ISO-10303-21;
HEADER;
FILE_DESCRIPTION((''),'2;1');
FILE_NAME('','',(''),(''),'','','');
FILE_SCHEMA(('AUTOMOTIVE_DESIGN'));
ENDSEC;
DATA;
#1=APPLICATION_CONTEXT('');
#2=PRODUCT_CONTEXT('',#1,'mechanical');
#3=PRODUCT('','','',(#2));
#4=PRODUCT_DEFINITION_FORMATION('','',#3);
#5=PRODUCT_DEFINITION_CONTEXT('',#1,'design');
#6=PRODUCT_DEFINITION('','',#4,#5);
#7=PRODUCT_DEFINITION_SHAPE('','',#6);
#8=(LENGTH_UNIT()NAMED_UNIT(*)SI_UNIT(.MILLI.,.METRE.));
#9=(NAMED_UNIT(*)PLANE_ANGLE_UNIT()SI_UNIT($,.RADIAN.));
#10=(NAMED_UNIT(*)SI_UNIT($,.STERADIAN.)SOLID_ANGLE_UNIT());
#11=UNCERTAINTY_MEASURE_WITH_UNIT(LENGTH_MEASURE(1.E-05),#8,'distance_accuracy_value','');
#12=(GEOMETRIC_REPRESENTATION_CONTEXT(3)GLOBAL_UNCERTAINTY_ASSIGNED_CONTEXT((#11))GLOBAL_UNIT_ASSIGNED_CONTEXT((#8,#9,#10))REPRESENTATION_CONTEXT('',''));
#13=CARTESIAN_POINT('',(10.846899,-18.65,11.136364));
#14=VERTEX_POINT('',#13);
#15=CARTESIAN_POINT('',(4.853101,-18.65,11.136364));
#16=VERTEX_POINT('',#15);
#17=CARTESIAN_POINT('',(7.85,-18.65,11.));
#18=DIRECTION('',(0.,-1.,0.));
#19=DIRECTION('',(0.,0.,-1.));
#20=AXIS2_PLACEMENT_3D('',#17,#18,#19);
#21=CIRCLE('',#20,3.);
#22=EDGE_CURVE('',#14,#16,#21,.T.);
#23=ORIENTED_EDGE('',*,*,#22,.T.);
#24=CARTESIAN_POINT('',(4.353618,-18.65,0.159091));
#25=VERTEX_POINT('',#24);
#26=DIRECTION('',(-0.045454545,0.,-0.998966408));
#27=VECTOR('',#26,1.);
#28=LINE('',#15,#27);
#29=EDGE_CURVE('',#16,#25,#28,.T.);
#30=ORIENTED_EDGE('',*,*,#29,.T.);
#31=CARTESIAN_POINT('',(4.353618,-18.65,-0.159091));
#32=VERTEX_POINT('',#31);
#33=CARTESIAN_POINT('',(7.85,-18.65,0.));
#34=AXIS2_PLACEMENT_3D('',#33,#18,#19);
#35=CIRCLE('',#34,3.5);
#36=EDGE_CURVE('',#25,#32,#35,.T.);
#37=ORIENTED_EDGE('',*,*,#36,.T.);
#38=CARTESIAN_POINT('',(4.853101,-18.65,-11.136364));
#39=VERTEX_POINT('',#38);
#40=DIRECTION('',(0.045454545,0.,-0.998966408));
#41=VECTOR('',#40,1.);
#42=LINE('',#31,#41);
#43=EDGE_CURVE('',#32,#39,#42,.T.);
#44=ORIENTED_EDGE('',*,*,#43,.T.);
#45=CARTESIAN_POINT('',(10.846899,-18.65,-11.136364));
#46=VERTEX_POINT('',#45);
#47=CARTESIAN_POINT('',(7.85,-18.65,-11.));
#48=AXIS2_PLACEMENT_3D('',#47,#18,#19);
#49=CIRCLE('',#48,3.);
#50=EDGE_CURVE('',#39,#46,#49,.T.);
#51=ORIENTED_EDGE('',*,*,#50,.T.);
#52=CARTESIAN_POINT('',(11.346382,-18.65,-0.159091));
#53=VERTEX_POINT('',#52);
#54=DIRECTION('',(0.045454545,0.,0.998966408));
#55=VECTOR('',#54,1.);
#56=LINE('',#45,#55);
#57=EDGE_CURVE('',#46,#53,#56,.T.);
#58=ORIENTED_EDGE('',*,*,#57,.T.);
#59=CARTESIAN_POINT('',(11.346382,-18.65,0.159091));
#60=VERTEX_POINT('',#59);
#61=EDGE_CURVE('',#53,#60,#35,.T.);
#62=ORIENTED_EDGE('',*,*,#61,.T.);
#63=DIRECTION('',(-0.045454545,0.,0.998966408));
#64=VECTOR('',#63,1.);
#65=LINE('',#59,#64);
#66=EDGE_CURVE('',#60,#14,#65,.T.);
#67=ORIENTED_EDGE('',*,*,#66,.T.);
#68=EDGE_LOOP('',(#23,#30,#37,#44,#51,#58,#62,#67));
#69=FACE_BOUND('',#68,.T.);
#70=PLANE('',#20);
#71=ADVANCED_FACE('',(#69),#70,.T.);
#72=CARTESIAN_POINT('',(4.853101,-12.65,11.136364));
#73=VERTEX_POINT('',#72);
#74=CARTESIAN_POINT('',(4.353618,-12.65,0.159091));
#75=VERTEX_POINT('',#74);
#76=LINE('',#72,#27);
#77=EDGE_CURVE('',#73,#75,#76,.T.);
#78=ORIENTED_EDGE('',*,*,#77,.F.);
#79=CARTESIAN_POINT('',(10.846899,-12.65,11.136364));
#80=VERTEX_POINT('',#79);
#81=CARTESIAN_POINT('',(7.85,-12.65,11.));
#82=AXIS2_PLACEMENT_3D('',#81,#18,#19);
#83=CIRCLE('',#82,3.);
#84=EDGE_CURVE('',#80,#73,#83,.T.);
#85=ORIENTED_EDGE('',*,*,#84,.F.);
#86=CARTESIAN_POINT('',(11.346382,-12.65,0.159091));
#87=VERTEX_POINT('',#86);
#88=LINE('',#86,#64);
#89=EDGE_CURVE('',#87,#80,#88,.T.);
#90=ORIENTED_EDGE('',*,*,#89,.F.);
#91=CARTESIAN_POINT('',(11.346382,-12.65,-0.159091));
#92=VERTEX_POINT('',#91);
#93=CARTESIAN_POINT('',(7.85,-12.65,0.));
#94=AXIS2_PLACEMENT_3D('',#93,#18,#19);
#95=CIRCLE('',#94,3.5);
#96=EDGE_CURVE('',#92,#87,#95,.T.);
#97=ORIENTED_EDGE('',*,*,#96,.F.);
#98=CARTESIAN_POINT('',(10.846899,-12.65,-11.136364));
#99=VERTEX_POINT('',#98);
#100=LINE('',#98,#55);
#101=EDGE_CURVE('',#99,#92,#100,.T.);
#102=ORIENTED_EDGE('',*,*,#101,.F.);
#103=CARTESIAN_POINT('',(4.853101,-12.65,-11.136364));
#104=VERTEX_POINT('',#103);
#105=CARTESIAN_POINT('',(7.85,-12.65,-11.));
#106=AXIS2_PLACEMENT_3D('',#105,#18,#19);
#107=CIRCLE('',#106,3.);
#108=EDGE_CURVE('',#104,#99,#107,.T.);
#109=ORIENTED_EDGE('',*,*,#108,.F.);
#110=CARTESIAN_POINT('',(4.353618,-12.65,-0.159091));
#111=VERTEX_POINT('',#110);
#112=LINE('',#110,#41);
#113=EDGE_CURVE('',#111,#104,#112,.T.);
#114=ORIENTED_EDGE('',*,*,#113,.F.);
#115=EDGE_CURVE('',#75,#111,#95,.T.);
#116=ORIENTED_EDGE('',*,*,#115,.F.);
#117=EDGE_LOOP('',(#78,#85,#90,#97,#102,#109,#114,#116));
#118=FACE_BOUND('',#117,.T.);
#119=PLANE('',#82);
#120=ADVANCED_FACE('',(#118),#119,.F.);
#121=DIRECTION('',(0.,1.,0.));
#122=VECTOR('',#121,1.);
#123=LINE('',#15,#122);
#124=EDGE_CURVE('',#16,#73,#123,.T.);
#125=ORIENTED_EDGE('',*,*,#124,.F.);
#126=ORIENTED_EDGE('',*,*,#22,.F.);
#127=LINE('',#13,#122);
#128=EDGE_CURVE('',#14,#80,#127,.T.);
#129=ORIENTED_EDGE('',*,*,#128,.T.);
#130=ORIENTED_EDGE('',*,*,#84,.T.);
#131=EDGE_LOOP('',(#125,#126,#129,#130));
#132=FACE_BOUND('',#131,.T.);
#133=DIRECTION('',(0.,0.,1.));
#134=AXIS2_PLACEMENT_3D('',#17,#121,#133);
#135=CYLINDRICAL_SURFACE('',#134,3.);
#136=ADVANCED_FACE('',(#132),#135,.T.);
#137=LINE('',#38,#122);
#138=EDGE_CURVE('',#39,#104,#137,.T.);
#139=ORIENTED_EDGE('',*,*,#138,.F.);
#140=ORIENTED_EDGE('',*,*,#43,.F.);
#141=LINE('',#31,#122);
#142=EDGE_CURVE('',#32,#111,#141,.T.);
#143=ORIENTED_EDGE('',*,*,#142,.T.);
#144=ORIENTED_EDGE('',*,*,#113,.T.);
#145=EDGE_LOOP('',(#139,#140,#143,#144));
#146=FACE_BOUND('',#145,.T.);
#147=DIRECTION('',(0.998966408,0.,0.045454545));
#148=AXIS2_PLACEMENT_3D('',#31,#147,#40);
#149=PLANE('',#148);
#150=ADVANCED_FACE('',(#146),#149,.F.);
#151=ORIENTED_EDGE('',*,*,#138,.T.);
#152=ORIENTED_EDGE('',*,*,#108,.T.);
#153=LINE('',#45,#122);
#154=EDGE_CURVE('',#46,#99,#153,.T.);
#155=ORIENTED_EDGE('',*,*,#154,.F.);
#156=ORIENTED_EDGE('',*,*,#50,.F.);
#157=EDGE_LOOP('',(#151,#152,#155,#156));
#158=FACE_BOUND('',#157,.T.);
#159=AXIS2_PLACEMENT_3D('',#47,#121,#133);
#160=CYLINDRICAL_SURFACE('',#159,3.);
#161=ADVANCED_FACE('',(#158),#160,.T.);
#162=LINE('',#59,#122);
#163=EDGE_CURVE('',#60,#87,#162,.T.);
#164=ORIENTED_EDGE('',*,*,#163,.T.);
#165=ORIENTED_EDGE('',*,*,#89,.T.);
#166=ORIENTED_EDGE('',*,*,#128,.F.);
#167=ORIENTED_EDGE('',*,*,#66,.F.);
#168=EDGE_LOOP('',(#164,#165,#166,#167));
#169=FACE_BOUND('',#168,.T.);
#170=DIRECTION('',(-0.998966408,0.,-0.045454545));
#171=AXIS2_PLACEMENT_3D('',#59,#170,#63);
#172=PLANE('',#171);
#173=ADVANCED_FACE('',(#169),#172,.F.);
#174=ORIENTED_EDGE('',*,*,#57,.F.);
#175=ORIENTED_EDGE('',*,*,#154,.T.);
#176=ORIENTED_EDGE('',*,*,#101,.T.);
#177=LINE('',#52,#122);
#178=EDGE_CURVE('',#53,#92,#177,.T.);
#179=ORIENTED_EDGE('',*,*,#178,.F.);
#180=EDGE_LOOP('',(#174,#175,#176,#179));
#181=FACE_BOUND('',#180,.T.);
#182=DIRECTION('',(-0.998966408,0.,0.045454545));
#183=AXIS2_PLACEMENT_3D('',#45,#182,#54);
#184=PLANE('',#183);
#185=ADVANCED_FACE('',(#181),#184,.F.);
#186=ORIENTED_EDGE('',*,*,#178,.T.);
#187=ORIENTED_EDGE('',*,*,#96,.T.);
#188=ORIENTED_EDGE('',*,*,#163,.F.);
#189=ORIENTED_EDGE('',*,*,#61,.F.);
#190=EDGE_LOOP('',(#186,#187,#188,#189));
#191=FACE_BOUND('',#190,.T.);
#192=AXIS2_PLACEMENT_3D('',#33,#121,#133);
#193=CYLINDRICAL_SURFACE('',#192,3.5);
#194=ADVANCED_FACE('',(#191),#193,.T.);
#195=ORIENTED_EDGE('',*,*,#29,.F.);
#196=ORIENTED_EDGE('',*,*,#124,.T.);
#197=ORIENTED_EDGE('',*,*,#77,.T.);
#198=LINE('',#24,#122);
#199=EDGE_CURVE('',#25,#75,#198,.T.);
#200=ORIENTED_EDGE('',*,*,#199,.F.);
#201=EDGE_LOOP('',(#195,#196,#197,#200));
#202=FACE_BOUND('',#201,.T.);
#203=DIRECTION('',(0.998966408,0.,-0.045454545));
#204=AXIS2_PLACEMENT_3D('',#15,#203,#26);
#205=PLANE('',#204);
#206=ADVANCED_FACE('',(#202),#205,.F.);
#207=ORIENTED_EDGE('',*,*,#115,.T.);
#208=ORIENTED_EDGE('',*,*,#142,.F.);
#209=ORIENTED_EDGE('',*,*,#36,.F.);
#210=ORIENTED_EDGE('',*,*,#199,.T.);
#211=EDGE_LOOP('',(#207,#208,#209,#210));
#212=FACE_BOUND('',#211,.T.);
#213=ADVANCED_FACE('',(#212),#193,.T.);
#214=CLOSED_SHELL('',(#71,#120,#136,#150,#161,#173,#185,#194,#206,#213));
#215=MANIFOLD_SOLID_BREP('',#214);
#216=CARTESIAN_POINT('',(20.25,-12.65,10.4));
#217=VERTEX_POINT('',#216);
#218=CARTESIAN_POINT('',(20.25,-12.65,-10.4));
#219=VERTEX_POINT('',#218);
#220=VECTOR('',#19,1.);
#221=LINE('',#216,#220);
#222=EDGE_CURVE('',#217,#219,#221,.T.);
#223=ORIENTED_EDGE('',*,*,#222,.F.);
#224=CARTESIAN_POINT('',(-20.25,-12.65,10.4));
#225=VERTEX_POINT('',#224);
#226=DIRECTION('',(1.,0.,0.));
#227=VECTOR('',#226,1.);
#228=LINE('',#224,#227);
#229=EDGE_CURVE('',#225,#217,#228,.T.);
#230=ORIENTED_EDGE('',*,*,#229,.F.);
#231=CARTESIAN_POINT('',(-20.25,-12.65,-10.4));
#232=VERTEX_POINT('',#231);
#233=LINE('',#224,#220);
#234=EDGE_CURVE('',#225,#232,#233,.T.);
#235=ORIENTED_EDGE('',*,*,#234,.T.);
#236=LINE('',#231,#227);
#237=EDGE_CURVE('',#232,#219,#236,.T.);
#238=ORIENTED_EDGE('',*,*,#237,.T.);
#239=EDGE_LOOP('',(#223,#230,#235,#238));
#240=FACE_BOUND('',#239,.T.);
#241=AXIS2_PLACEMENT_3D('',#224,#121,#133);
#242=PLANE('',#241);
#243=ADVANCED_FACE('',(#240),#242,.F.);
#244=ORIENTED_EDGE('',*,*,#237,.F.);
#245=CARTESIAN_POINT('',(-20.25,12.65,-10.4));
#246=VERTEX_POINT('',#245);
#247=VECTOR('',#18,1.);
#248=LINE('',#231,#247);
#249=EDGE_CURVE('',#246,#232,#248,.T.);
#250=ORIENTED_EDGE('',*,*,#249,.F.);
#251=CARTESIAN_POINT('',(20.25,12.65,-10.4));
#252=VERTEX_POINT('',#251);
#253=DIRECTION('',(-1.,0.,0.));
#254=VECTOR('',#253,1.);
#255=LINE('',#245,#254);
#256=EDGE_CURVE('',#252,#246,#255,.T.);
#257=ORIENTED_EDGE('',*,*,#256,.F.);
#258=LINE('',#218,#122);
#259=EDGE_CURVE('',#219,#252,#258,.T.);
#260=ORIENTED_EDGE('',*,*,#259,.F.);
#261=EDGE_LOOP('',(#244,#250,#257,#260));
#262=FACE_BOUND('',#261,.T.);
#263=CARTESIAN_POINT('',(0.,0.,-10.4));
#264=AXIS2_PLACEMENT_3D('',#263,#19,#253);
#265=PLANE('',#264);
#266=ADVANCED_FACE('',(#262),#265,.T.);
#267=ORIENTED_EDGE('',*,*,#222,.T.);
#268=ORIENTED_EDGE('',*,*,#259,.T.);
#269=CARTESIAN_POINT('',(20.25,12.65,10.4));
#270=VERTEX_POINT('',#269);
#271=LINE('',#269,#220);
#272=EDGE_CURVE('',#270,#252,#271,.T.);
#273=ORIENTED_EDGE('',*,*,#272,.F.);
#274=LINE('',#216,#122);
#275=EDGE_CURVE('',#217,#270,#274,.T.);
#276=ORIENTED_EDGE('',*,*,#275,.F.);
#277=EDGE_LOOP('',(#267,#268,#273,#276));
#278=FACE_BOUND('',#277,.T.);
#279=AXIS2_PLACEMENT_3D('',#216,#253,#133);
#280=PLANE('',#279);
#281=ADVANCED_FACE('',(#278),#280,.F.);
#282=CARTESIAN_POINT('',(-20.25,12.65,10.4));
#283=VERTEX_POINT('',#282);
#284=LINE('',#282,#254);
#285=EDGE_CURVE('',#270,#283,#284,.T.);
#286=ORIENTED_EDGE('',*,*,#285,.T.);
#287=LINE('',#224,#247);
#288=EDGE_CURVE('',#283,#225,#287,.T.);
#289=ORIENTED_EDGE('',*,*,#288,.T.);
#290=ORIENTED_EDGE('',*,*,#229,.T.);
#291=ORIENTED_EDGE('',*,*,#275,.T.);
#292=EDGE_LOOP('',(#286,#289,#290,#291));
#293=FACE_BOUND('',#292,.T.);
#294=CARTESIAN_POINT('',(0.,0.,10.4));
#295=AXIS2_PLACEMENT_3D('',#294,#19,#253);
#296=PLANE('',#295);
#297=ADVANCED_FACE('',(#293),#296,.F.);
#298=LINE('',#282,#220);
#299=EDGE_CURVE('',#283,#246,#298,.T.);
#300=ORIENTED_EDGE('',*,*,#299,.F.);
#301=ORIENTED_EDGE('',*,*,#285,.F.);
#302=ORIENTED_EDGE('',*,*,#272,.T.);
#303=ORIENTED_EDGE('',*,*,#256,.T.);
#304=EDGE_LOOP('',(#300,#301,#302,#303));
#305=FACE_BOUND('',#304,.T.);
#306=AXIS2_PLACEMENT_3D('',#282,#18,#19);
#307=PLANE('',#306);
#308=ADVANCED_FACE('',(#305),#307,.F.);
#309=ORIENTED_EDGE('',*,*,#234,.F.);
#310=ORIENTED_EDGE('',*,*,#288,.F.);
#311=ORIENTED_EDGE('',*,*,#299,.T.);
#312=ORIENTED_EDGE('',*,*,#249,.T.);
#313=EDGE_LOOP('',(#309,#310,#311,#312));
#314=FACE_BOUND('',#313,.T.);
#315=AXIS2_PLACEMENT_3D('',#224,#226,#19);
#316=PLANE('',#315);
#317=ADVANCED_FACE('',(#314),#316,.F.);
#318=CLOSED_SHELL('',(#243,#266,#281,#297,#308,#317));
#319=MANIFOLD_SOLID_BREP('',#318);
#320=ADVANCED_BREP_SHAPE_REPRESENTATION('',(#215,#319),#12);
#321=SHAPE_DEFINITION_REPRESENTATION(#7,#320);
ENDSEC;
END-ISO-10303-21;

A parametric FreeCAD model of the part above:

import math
import FreeCAD as App
import Part
import Sketcher
Q = App.Units.Quantity

doc = App.newDocument("Part")
body = doc.addObject("PartDesign::Body", "Body")

sketch1 = doc.addObject("Sketcher::SketchObject", "Sketch")
body.addObject(sketch1)
sketch1.AttachmentSupport = (doc.XY_Plane, [""])
sketch1.MapMode = "FlatFace"
sketch1.addGeometry(Part.LineSegment(App.Vector(-20, 13, 0), App.Vector(-20, -13, 0)), False)
sketch1.addGeometry(Part.LineSegment(App.Vector(-20, -13, 0), App.Vector(20, -13, 0)), False)
sketch1.addGeometry(Part.LineSegment(App.Vector(20, -13, 0), App.Vector(20, 13, 0)), False)
sketch1.addGeometry(Part.LineSegment(App.Vector(20, 13, 0), App.Vector(-20, 13, 0)), False)
sketch1.addConstraint(Sketcher.Constraint("Coincident", 0, 2, 1, 1))
sketch1.addConstraint(Sketcher.Constraint("Coincident", 1, 2, 2, 1))
sketch1.addConstraint(Sketcher.Constraint("Coincident", 2, 2, 3, 1))
sketch1.addConstraint(Sketcher.Constraint("Coincident", 3, 2, 0, 1))
sketch1.addConstraint(Sketcher.Constraint("Vertical", 0))
sketch1.addConstraint(Sketcher.Constraint("Horizontal", 1))
sketch1.addConstraint(Sketcher.Constraint("Vertical", 2))
sketch1.addConstraint(Sketcher.Constraint("Horizontal", 3))
sketch1.addConstraint(Sketcher.Constraint("Symmetric", 0, 2, 2, 2, -1, 1))
sketch1.addConstraint(Sketcher.Constraint("DistanceX", 1, 1, 1, 2, Q("40.5 mm")))
sketch1.addConstraint(Sketcher.Constraint("DistanceY", 0, 2, 0, 1, Q("25.3 mm")))
pad1 = doc.addObject("PartDesign::Pad", "Pad")
body.addObject(pad1)
pad1.Profile = sketch1
pad1.Length = 20.8
pad1.Midplane = True
body2 = doc.addObject("PartDesign::Body", "Body001")

sketch2 = doc.addObject("Sketcher::SketchObject", "Sketch001")
body2.addObject(sketch2)
sketch2.AttachmentSupport = (doc.getObject("XZ_Plane001"), [""])
sketch2.MapMode = "FlatFace"
sketch2.AttachmentOffset = App.Placement(App.Vector(0, 0, 12.65), App.Rotation())
sketch2.addGeometry(Part.LineSegment(App.Vector(4.35, -0.16, 0), App.Vector(4.85, -11.14, 0)), False)
sketch2.addGeometry(Part.ArcOfCircle(Part.Circle(App.Vector(7.85, -11, 0), App.Vector(0, 0, 1), 3), math.radians(-177), math.radians(-3)), False)
sketch2.addGeometry(Part.LineSegment(App.Vector(10.85, -11.14, 0), App.Vector(11.35, -0.16, 0)), False)
sketch2.addGeometry(Part.ArcOfCircle(Part.Circle(App.Vector(7.85, 0, 0), App.Vector(0, 0, 1), 3.5), math.radians(-2.61), math.radians(2.61)), False)
sketch2.addGeometry(Part.LineSegment(App.Vector(11.35, 0.16, 0), App.Vector(10.85, 11.14, 0)), False)
sketch2.addGeometry(Part.ArcOfCircle(Part.Circle(App.Vector(7.85, 11, 0), App.Vector(0, 0, 1), 3), math.radians(3), math.radians(177)), False)
sketch2.addGeometry(Part.LineSegment(App.Vector(4.85, 11.14, 0), App.Vector(4.35, 0.16, 0)), False)
sketch2.addGeometry(Part.ArcOfCircle(Part.Circle(App.Vector(7.85, 0, 0), App.Vector(0, 0, 1), 3.5), math.radians(177.39), math.radians(182.61)), False)
sketch2.addConstraint(Sketcher.Constraint("Tangent", 0, 2, 1, 1))
sketch2.addConstraint(Sketcher.Constraint("Tangent", 1, 2, 2, 1))
sketch2.addConstraint(Sketcher.Constraint("Tangent", 2, 2, 3, 1))
sketch2.addConstraint(Sketcher.Constraint("Tangent", 3, 2, 4, 1))
sketch2.addConstraint(Sketcher.Constraint("Tangent", 4, 2, 5, 1))
sketch2.addConstraint(Sketcher.Constraint("Tangent", 5, 2, 6, 1))
sketch2.addConstraint(Sketcher.Constraint("Tangent", 6, 2, 7, 1))
sketch2.addConstraint(Sketcher.Constraint("Tangent", 7, 2, 0, 1))
sketch2.addConstraint(Sketcher.Constraint("Coincident", 7, 3, 3, 3))
sketch2.addConstraint(Sketcher.Constraint("Equal", 1, 5))
sketch2.addConstraint(Sketcher.Constraint("Equal", 3, 7))
sketch2.addConstraint(Sketcher.Constraint("Symmetric", 1, 3, 5, 3, -1))
sketch2.addConstraint(Sketcher.Constraint("PointOnObject", 3, 3, -1))
sketch2.addConstraint(Sketcher.Constraint("Parallel", 0, 4))
sketch2.addConstraint(Sketcher.Constraint("Radius", 1, Q("3 mm")))
sketch2.addConstraint(Sketcher.Constraint("Radius", 3, Q("3.5 mm")))
sketch2.addConstraint(Sketcher.Constraint("DistanceY", 1, 3, -1, 1, Q("11 mm")))
sketch2.addConstraint(Sketcher.Constraint("DistanceX", -1, 1, 1, 3, Q("7.85 mm")))
pad2 = doc.addObject("PartDesign::Pad", "Pad001")
body2.addObject(pad2)
pad2.Profile = sketch2
pad2.Length = 6

doc.recompute()
